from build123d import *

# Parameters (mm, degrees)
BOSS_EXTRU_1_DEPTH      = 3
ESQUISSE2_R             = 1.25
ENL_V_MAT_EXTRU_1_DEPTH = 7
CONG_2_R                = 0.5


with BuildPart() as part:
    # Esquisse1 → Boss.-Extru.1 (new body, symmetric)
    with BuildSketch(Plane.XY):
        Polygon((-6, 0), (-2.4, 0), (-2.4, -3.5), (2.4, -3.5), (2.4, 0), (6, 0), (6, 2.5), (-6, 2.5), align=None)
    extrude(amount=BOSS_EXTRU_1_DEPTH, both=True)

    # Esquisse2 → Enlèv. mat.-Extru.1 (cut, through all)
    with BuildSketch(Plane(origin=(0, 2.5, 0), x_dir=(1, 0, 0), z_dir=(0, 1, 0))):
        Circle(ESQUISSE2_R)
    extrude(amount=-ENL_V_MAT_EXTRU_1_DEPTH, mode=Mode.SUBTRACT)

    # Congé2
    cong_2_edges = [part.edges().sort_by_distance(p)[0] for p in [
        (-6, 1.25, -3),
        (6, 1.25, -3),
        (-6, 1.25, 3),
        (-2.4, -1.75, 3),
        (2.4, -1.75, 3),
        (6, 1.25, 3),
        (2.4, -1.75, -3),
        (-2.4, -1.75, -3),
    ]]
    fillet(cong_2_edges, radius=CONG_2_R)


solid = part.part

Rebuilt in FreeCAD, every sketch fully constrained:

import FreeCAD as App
import Part
import Sketcher
Q = App.Units.Quantity


def edges_at(feature, points):
    """Names of the edges that pass closest to the given points."""
    edges = feature.Shape.Edges
    near = lambda p: min(range(len(edges)), key=lambda i: edges[i].distToShape(Part.Vertex(*p))[0])
    return sorted({f"Edge{near(p) + 1}" for p in points})

doc = App.newDocument("Part")
body = doc.addObject("PartDesign::Body", "Body")

# Sketch on XY plane
sketch1 = body.newObject("Sketcher::SketchObject", "Sketch")
sketch1.AttachmentSupport = (doc.getObject("XY_Plane"), [""])
sketch1.MapMode = "FlatFace"
sketch1.addGeometry([
    Part.LineSegment(App.Vector(-6, 0, 0), App.Vector(-2.4, 0, 0)),  # 0
    Part.LineSegment(App.Vector(-2.4, 0, 0), App.Vector(-2.4, -3.5, 0)),  # 1
    Part.LineSegment(App.Vector(-2.4, -3.5, 0), App.Vector(2.4, -3.5, 0)),  # 2
    Part.LineSegment(App.Vector(2.4, -3.5, 0), App.Vector(2.4, 0, 0)),  # 3
    Part.LineSegment(App.Vector(2.4, 0, 0), App.Vector(6, 0, 0)),  # 4
    Part.LineSegment(App.Vector(6, 0, 0), App.Vector(6, 2.5, 0)),  # 5
    Part.LineSegment(App.Vector(6, 2.5, 0), App.Vector(-6, 2.5, 0)),  # 6
    Part.LineSegment(App.Vector(-6, 2.5, 0), App.Vector(-6, 0, 0)),  # 7
], False)
sketch1.addConstraint([
    Sketcher.Constraint("Coincident", 0, 2, 1, 1),
    Sketcher.Constraint("Coincident", 1, 2, 2, 1),
    Sketcher.Constraint("Coincident", 2, 2, 3, 1),
    Sketcher.Constraint("Coincident", 3, 2, 4, 1),
    Sketcher.Constraint("Coincident", 4, 2, 5, 1),
    Sketcher.Constraint("Coincident", 5, 2, 6, 1),
    Sketcher.Constraint("Coincident", 6, 2, 7, 1),
    Sketcher.Constraint("Coincident", 7, 2, 0, 1),
    Sketcher.Constraint("Horizontal", 0),
    Sketcher.Constraint("Vertical", 1),
    Sketcher.Constraint("Horizontal", 2),
    Sketcher.Constraint("Vertical", 3),
    Sketcher.Constraint("Horizontal", 4),
    Sketcher.Constraint("Vertical", 5),
    Sketcher.Constraint("Horizontal", 6),
    Sketcher.Constraint("Vertical", 7),
    Sketcher.Constraint("Symmetric", 0, 2, 3, 2, -1, 1),
    Sketcher.Constraint("Symmetric", 4, 2, 7, 2, -2),
    Sketcher.Constraint("DistanceX", 6, 2, 6, 1, Q("12 mm")),
    Sketcher.Constraint("DistanceX", 0, 1, 0, 2, Q("3.6 mm")),
    Sketcher.Constraint("DistanceY", 1, 2, 1, 1, Q("3.5 mm")),
    Sketcher.Constraint("DistanceY", 5, 1, 5, 2, Q("2.5 mm")),
])
pad1 = body.newObject("PartDesign::Pad", "Pad")
pad1.Profile = sketch1
pad1.Length = 6
pad1.Midplane = True

# Sketch on XZ plane
sketch2 = body.newObject("Sketcher::SketchObject", "Sketch001")
sketch2.AttachmentSupport = (doc.getObject("XZ_Plane"), [""])
sketch2.MapMode = "FlatFace"
sketch2.AttachmentOffset = App.Placement(App.Vector(0, 0, -2.5), App.Rotation())
sketch2.addGeometry(Part.Circle(App.Vector(0, 0, 0), App.Vector(0, 0, 1), 1.2), False)
sketch2.addConstraint([
    Sketcher.Constraint("Coincident", 0, 3, -1, 1),
    Sketcher.Constraint("Diameter", 0, Q("2.5 mm")),
])
pocket1 = body.newObject("PartDesign::Pocket", "Pocket")
pocket1.Profile = sketch2
pocket1.Type = "ThroughAll"
pocket1.Reversed = True
doc.recompute()

fillet = body.newObject("PartDesign::Fillet", "Fillet")
fillet.Base = (pocket1, edges_at(pocket1, [
    (-6, 1.25, -3),
    (6, 1.25, -3),
    (-6, 1.25, 3),
    (-2.4, -1.75, 3),
    (2.4, -1.75, 3),
    (6, 1.25, 3),
    (2.4, -1.75, -3),
    (-2.4, -1.75, -3),
]))
fillet.Radius = 0.5

doc.recompute()
